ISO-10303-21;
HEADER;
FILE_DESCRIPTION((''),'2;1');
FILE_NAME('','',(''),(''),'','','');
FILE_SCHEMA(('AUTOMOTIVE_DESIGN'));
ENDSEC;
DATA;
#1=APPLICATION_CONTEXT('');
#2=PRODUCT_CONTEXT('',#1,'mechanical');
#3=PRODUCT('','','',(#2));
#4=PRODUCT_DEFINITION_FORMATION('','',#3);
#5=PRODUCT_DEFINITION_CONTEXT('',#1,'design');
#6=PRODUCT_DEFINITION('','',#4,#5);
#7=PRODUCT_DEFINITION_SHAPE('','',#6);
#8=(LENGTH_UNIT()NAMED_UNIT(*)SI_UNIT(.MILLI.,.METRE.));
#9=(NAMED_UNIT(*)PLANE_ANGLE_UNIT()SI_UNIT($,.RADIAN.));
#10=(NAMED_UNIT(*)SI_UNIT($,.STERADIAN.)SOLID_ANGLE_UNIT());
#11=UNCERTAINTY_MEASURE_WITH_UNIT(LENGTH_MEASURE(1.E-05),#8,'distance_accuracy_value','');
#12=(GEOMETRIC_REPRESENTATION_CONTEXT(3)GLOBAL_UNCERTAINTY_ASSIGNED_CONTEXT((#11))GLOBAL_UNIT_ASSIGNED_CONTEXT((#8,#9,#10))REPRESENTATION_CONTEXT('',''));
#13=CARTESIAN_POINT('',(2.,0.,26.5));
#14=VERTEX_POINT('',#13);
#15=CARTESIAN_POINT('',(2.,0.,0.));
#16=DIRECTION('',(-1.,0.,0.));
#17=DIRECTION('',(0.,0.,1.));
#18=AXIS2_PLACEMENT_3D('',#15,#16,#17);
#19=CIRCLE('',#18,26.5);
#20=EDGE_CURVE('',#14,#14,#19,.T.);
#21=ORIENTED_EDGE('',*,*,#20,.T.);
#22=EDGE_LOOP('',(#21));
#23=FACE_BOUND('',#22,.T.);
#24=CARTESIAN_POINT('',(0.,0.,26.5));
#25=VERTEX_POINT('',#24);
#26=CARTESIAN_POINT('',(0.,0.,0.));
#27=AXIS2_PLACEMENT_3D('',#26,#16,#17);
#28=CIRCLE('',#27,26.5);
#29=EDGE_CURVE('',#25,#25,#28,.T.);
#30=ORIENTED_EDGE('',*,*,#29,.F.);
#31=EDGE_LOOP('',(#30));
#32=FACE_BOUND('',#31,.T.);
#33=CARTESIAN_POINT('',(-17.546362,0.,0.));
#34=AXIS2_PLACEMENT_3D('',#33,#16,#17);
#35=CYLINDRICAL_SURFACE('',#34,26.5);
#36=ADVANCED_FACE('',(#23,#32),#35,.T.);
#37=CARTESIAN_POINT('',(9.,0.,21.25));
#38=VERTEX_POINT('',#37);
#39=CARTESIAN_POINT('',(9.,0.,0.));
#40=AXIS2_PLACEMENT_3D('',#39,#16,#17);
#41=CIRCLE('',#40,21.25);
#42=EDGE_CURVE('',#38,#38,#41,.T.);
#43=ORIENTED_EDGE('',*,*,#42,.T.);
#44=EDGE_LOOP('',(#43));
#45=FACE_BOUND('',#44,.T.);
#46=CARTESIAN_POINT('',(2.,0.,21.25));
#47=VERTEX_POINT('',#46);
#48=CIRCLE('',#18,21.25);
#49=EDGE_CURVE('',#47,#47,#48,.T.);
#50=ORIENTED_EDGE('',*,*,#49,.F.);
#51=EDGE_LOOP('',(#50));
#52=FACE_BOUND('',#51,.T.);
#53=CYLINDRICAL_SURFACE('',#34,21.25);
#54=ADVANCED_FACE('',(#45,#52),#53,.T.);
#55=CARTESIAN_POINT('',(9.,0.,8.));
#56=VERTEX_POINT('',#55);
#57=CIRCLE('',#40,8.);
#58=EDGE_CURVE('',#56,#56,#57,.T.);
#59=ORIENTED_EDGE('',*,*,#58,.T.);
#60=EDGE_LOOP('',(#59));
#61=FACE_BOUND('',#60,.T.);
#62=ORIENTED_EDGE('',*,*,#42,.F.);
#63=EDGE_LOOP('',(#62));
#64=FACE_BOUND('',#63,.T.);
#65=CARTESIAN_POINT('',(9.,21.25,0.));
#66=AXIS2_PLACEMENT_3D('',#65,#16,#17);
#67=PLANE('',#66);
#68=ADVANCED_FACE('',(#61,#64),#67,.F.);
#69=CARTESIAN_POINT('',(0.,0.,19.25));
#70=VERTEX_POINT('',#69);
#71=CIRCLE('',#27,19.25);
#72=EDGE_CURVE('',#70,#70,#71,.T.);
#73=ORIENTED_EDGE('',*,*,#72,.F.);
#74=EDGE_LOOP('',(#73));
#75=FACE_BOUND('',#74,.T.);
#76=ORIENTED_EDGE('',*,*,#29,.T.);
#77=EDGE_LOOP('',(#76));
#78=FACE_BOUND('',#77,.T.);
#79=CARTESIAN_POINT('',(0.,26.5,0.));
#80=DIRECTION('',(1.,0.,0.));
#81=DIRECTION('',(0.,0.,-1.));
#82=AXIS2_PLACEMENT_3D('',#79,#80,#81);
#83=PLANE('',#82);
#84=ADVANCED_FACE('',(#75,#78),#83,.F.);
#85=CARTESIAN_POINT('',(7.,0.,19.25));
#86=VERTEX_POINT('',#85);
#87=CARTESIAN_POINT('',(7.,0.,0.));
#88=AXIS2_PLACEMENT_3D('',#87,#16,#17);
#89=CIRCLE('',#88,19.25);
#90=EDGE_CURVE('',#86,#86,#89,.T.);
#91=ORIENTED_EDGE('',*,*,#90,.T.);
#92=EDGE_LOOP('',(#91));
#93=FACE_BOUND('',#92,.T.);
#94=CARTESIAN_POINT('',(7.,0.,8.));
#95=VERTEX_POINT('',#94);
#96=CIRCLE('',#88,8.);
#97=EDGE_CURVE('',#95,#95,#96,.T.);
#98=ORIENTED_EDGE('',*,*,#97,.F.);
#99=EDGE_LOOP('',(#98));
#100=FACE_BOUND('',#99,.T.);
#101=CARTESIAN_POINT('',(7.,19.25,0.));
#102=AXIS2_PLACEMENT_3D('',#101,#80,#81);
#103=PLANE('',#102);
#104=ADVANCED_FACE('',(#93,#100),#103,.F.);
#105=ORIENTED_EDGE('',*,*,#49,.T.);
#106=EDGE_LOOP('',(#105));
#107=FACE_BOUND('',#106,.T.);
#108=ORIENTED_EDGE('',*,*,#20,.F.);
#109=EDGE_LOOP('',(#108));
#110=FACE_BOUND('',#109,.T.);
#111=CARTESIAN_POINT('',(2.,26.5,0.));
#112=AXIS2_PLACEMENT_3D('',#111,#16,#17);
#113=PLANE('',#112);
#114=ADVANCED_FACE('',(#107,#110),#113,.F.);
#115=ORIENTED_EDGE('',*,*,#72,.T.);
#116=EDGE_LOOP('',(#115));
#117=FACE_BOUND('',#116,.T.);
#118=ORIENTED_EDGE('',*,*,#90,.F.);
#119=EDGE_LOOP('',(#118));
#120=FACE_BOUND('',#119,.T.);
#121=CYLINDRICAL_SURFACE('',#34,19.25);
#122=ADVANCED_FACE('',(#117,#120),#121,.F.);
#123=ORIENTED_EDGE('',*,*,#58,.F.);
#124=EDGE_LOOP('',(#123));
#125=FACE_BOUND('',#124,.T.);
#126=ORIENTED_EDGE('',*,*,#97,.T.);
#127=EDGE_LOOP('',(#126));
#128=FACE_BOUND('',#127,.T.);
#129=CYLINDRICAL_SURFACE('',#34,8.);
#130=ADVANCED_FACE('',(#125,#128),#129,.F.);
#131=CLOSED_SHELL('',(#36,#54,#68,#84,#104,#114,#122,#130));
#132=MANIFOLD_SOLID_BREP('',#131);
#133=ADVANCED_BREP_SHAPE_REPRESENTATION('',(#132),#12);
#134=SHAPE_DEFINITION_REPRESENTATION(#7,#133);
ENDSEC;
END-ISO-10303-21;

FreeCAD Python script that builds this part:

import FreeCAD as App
import Part
import Sketcher
Q = App.Units.Quantity


def add_polygon(sketch, points):
    """Adds a closed chain of lines whose ends are joined by coincident constraints."""
    first, n = sketch.GeometryCount, len(points)
    for a, b in zip(points, points[1:] + points[:1]):
        sketch.addGeometry(Part.LineSegment(App.Vector(*a, 0), App.Vector(*b, 0)), False)
    for i in range(n):
        sketch.addConstraint(Sketcher.Constraint("Coincident", first + i, 2, first + (i + 1) % n, 1))

doc = App.newDocument("Part")
body = doc.addObject("PartDesign::Body", "Body")

sketch1 = body.newObject("Sketcher::SketchObject", "Sketch")
sketch1.AttachmentSupport = (doc.getObject("XY_Plane"), [""])
sketch1.MapMode = "FlatFace"
add_polygon(sketch1, [(2, 26.5), (0, 26.5), (0, 19.25), (7, 19.25), (7, 8), (9, 8), (9, 21.25), (2, 21.25)])
sketch1.addConstraint([
    Sketcher.Constraint("Horizontal", 0),
    Sketcher.Constraint("Vertical", 1),
    Sketcher.Constraint("Horizontal", 2),
    Sketcher.Constraint("Vertical", 3),
    Sketcher.Constraint("Horizontal", 4),
    Sketcher.Constraint("Vertical", 5),
    Sketcher.Constraint("Horizontal", 6),
    Sketcher.Constraint("Vertical", 7),
    Sketcher.Constraint("PointOnObject", 0, 2, -2),
    Sketcher.Constraint("Equal", 0, 4),
    Sketcher.Constraint("DistanceX", 0, 2, 0, 1, Q("2 mm")),
    Sketcher.Constraint("DistanceX", 2, 1, 2, 2, Q("7 mm")),
    Sketcher.Constraint("DistanceY", -1, 1, 3, 2, Q("8 mm")),
    Sketcher.Constraint("DistanceY", 2, 2, 5, 2, Q("2 mm")),
    Sketcher.Constraint("DistanceY", 1, 2, 1, 1, Q("7.25 mm")),
    Sketcher.Constraint("DistanceY", 3, 2, 3, 1, Q("11.25 mm")),
])
revolution = body.newObject("PartDesign::Revolution", "Revolution")
revolution.Profile = sketch1
revolution.ReferenceAxis = (sketch1, ["H_Axis"])
revolution.Angle = 360

doc.recompute()
